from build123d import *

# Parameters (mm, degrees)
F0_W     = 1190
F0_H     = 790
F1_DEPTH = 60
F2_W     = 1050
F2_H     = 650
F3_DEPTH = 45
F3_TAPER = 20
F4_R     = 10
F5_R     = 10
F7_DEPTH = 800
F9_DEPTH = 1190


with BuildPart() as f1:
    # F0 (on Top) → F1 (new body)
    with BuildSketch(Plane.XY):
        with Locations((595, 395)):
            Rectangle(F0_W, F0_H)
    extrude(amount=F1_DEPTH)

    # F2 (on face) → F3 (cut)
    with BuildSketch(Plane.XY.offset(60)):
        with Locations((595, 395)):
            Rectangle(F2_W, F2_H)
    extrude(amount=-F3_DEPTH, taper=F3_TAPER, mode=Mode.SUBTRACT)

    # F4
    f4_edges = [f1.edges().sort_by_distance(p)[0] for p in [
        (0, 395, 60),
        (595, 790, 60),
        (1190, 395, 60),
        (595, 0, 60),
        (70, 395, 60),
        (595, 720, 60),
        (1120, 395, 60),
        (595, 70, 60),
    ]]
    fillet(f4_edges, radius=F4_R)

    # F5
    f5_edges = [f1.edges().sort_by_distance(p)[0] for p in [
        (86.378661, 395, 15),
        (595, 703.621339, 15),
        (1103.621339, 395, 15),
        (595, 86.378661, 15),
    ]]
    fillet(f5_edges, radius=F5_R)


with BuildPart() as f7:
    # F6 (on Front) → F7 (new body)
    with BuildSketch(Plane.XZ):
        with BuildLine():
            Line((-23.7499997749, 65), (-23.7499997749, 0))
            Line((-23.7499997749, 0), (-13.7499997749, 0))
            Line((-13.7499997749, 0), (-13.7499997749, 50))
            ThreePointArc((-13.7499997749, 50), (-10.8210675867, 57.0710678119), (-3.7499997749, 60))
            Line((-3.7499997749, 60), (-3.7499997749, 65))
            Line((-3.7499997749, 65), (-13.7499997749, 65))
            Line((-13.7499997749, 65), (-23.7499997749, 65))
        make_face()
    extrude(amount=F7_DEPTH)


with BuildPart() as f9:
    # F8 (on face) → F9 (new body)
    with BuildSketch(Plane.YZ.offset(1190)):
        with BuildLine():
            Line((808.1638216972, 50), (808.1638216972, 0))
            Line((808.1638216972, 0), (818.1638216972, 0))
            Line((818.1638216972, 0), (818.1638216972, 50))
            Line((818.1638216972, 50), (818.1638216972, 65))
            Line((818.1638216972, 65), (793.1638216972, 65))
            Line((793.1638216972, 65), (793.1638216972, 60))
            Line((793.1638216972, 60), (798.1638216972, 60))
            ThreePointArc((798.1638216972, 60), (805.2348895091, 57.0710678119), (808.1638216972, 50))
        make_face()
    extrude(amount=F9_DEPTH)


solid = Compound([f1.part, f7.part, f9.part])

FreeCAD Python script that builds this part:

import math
import FreeCAD as App
import Part
import Sketcher
Q = App.Units.Quantity


def edges_at(feature, points):
    """Names of the edges that pass closest to the given points."""
    edges = feature.Shape.Edges
    near = lambda p: min(range(len(edges)), key=lambda i: edges[i].distToShape(Part.Vertex(*p))[0])
    return sorted({f"Edge{near(p) + 1}" for p in points})


def add_polygon(sketch, points):
    """Adds a closed chain of lines whose ends are joined by coincident constraints."""
    first, n = sketch.GeometryCount, len(points)
    for a, b in zip(points, points[1:] + points[:1]):
        sketch.addGeometry(Part.LineSegment(App.Vector(*a, 0), App.Vector(*b, 0)), False)
    for i in range(n):
        sketch.addConstraint(Sketcher.Constraint("Coincident", first + i, 2, first + (i + 1) % n, 1))

doc = App.newDocument("Part")
body = doc.addObject("PartDesign::Body", "Body")

sketch1 = body.newObject("Sketcher::SketchObject", "Sketch")
sketch1.AttachmentSupport = (doc.getObject("XY_Plane"), [""])
sketch1.MapMode = "FlatFace"
add_polygon(sketch1, [(0, 790), (0, 0), (1190, 0), (1190, 790)])
sketch1.addConstraint(Sketcher.Constraint("Vertical", 0))
sketch1.addConstraint(Sketcher.Constraint("Horizontal", 1))
sketch1.addConstraint(Sketcher.Constraint("Vertical", 2))
sketch1.addConstraint(Sketcher.Constraint("Horizontal", 3))
sketch1.addConstraint(Sketcher.Constraint("Coincident", 0, 2, -1, 1))
sketch1.addConstraint(Sketcher.Constraint("DistanceX", 1, 1, 1, 2, Q("1190 mm")))
sketch1.addConstraint(Sketcher.Constraint("DistanceY", 0, 2, 0, 1, Q("790 mm")))
pad1 = body.newObject("PartDesign::Pad", "Pad")
pad1.Profile = sketch1
pad1.Length = 60

sketch2 = body.newObject("Sketcher::SketchObject", "Sketch001")
sketch2.AttachmentSupport = (doc.getObject("XY_Plane"), [""])
sketch2.MapMode = "FlatFace"
sketch2.AttachmentOffset = App.Placement(App.Vector(0, 0, 60), App.Rotation())
add_polygon(sketch2, [(70, 720), (70, 70), (1120, 70), (1120, 720)])
sketch2.addConstraint(Sketcher.Constraint("Vertical", 0))
sketch2.addConstraint(Sketcher.Constraint("Horizontal", 1))
sketch2.addConstraint(Sketcher.Constraint("Vertical", 2))
sketch2.addConstraint(Sketcher.Constraint("Horizontal", 3))
sketch2.addConstraint(Sketcher.Constraint("DistanceX", 1, 1, 1, 2, Q("1050 mm")))
sketch2.addConstraint(Sketcher.Constraint("DistanceY", 0, 2, 0, 1, Q("650 mm")))
sketch2.addConstraint(Sketcher.Constraint("DistanceX", -1, 1, 0, 2, Q("70 mm")))
sketch2.addConstraint(Sketcher.Constraint("DistanceY", -1, 1, 0, 2, Q("70 mm")))
pocket1 = body.newObject("PartDesign::Pocket", "Pocket")
pocket1.Profile = sketch2
pocket1.Length = 45
pocket1.TaperAngle = -20
doc.recompute()

fillet = body.newObject("PartDesign::Fillet", "Fillet")
fillet.Base = (pocket1, edges_at(pocket1, [
    (0, 395, 60),
    (595, 790, 60),
    (1190, 395, 60),
    (595, 0, 60),
    (70, 395, 60),
    (595, 720, 60),
    (1120, 395, 60),
    (595, 70, 60),
]))
fillet.Radius = 10
doc.recompute()

fillet2 = body.newObject("PartDesign::Fillet", "Fillet001")
fillet2.Base = (fillet, edges_at(fillet, [
    (86.379, 395, 15),
    (595, 703.621, 15),
    (1103.621, 395, 15),
    (595, 86.379, 15),
]))
fillet2.Radius = 10
body2 = doc.addObject("PartDesign::Body", "Body001")

sketch3 = body2.newObject("Sketcher::SketchObject", "Sketch002")
sketch3.AttachmentSupport = (doc.getObject("XZ_Plane001"), [""])
sketch3.MapMode = "FlatFace"
sketch3.addGeometry(Part.LineSegment(App.Vector(-23.75, 65, 0), App.Vector(-23.75, 0, 0)), False)
sketch3.addGeometry(Part.LineSegment(App.Vector(-23.75, 0, 0), App.Vector(-13.75, 0, 0)), False)
sketch3.addGeometry(Part.LineSegment(App.Vector(-13.75, 0, 0), App.Vector(-13.75, 50, 0)), False)
sketch3.addGeometry(Part.ArcOfCircle(Part.Circle(App.Vector(-3.75, 50, 0), App.Vector(0, 0, 1), 10), math.radians(90), math.radians(180)), False)
sketch3.addGeometry(Part.LineSegment(App.Vector(-3.75, 60, 0), App.Vector(-3.75, 65, 0)), False)
sketch3.addGeometry(Part.LineSegment(App.Vector(-3.75, 65, 0), App.Vector(-23.75, 65, 0)), False)
sketch3.addConstraint(Sketcher.Constraint("Coincident", 0, 2, 1, 1))
sketch3.addConstraint(Sketcher.Constraint("Coincident", 1, 2, 2, 1))
sketch3.addConstraint(Sketcher.Constraint("Tangent", 2, 2, 3, 2))
sketch3.addConstraint(Sketcher.Constraint("Coincident", 3, 1, 4, 1))
sketch3.addConstraint(Sketcher.Constraint("Coincident", 4, 2, 5, 1))
sketch3.addConstraint(Sketcher.Constraint("Coincident", 5, 2, 0, 1))
sketch3.addConstraint(Sketcher.Constraint("Vertical", 0))
sketch3.addConstraint(Sketcher.Constraint("Horizontal", 1))
sketch3.addConstraint(Sketcher.Constraint("Vertical", 2))
sketch3.addConstraint(Sketcher.Constraint("Vertical", 4))
sketch3.addConstraint(Sketcher.Constraint("Horizontal", 5))
sketch3.addConstraint(Sketcher.Constraint("PointOnObject", 0, 2, -1))
sketch3.addConstraint(Sketcher.Constraint("Radius", 3, Q("10 mm")))
sketch3.addConstraint(Sketcher.Constraint("DistanceX", 1, 1, 1, 2, Q("10 mm")))
sketch3.addConstraint(Sketcher.Constraint("DistanceX", 5, 2, 5, 1, Q("20 mm")))
sketch3.addConstraint(Sketcher.Constraint("DistanceY", 0, 2, 0, 1, Q("65 mm")))
sketch3.addConstraint(Sketcher.Constraint("DistanceY", 2, 1, 2, 2, Q("50 mm")))
sketch3.addConstraint(Sketcher.Constraint("DistanceX", 3, 3, -1, 1, Q("3.75 mm")))
pad2 = body2.newObject("PartDesign::Pad", "Pad001")
pad2.Profile = sketch3
pad2.Length = 800
body3 = doc.addObject("PartDesign::Body", "Body002")

sketch4 = body3.newObject("Sketcher::SketchObject", "Sketch003")
sketch4.AttachmentSupport = (doc.getObject("YZ_Plane002"), [""])
sketch4.MapMode = "FlatFace"
sketch4.AttachmentOffset = App.Placement(App.Vector(0, 0, 1190), App.Rotation())
sketch4.addGeometry(Part.LineSegment(App.Vector(808.163822, 50, 0), App.Vector(808.163822, 0, 0)), False)
sketch4.addGeometry(Part.LineSegment(App.Vector(808.163822, 0, 0), App.Vector(818.163822, 0, 0)), False)
sketch4.addGeometry(Part.LineSegment(App.Vector(818.163822, 0, 0), App.Vector(818.163822, 65, 0)), False)
sketch4.addGeometry(Part.LineSegment(App.Vector(818.163822, 65, 0), App.Vector(793.163822, 65, 0)), False)
sketch4.addGeometry(Part.LineSegment(App.Vector(793.163822, 65, 0), App.Vector(793.163822, 60, 0)), False)
sketch4.addGeometry(Part.LineSegment(App.Vector(793.163822, 60, 0), App.Vector(798.163822, 60, 0)), False)
sketch4.addGeometry(Part.ArcOfCircle(Part.Circle(App.Vector(798.163822, 50, 0), App.Vector(0, 0, 1), 10), math.radians(0), math.radians(90)), False)
sketch4.addConstraint(Sketcher.Constraint("Coincident", 0, 2, 1, 1))
sketch4.addConstraint(Sketcher.Constraint("Coincident", 1, 2, 2, 1))
sketch4.addConstraint(Sketcher.Constraint("Coincident", 2, 2, 3, 1))
sketch4.addConstraint(Sketcher.Constraint("Coincident", 3, 2, 4, 1))
sketch4.addConstraint(Sketcher.Constraint("Coincident", 4, 2, 5, 1))
sketch4.addConstraint(Sketcher.Constraint("Tangent", 5, 2, 6, 2))
sketch4.addConstraint(Sketcher.Constraint("Tangent", 6, 1, 0, 1))
sketch4.addConstraint(Sketcher.Constraint("Vertical", 0))
sketch4.addConstraint(Sketcher.Constraint("Horizontal", 1))
sketch4.addConstraint(Sketcher.Constraint("Vertical", 2))
sketch4.addConstraint(Sketcher.Constraint("Horizontal", 3))
sketch4.addConstraint(Sketcher.Constraint("Vertical", 4))
sketch4.addConstraint(Sketcher.Constraint("Horizontal", 5))
sketch4.addConstraint(Sketcher.Constraint("PointOnObject", 0, 2, -1))
sketch4.addConstraint(Sketcher.Constraint("Equal", 5, 4))
sketch4.addConstraint(Sketcher.Constraint("Radius", 6, Q("10 mm")))
sketch4.addConstraint(Sketcher.Constraint("DistanceX", 1, 1, 1, 2, Q("10 mm")))
sketch4.addConstraint(Sketcher.Constraint("DistanceX", 3, 2, 3, 1, Q("25 mm")))
sketch4.addConstraint(Sketcher.Constraint("DistanceY", 0, 2, 0, 1, Q("50 mm")))
sketch4.addConstraint(Sketcher.Constraint("DistanceX", -1, 1, 6, 3, Q("798.163822 mm")))
pad3 = body3.newObject("PartDesign::Pad", "Pad002")
pad3.Profile = sketch4
pad3.Length = 1190

doc.recompute()
